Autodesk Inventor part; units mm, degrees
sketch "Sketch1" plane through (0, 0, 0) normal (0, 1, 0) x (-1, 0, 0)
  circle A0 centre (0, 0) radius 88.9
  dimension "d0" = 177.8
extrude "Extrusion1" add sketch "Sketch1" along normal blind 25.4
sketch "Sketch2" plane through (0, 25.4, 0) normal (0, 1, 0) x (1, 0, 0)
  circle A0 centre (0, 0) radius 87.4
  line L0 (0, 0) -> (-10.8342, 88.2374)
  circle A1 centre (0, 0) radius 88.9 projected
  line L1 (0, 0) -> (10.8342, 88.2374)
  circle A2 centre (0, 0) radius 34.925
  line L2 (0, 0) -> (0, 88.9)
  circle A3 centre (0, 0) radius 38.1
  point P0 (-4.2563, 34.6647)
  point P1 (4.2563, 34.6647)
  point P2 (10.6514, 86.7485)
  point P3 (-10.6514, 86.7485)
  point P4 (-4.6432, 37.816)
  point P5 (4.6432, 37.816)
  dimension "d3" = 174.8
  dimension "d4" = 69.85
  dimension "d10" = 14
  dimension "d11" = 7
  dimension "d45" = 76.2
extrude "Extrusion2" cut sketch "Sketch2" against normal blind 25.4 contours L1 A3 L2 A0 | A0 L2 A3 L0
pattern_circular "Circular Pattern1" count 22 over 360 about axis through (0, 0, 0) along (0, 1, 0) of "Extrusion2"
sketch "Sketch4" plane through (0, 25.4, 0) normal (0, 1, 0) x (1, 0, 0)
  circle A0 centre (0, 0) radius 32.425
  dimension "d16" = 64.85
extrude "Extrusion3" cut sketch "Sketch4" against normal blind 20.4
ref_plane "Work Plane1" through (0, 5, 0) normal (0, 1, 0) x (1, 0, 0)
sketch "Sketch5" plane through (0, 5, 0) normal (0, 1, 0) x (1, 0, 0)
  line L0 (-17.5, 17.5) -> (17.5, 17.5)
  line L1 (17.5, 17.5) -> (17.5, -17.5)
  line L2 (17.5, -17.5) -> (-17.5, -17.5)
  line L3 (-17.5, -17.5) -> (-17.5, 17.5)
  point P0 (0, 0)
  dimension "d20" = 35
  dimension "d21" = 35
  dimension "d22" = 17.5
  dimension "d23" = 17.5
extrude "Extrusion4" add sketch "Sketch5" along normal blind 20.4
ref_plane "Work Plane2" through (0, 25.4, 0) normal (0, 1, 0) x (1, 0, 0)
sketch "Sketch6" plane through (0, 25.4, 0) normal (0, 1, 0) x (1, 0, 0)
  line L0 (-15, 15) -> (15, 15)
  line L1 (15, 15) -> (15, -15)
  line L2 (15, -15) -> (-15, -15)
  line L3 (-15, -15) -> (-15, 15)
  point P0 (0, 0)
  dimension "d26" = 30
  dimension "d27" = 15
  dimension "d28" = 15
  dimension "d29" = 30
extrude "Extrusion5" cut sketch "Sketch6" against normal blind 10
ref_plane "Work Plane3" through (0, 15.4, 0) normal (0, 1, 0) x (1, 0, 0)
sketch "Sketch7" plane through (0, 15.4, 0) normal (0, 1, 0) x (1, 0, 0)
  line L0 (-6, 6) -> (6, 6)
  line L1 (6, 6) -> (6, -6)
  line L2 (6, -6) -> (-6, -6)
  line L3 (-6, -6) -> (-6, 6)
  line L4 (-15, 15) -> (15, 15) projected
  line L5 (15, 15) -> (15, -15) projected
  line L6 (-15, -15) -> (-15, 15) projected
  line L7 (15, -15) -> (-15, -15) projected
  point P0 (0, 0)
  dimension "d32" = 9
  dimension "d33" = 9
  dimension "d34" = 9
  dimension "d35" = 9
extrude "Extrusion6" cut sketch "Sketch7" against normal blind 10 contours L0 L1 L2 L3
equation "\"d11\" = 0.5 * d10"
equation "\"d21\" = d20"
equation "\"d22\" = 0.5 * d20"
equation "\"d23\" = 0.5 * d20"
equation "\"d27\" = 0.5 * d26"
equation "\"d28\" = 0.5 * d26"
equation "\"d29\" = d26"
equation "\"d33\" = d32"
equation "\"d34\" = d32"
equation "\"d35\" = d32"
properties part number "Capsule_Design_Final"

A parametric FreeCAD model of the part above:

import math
import FreeCAD as App
import Part
import Sketcher
Q = App.Units.Quantity

doc = App.newDocument("Part")
body = doc.addObject("PartDesign::Body", "Body")

# Sketch on XZ plane
sketch1 = body.newObject("Sketcher::SketchObject", "Sketch")
sketch1.AttachmentSupport = (doc.getObject("XZ_Plane"), [""])
sketch1.MapMode = "FlatFace"
sketch1.addGeometry(Part.Circle(App.Vector(0, 0, 0), App.Vector(0, 0, 1), 89), False)
sketch1.addConstraint([
    Sketcher.Constraint("Coincident", 0, 3, -1, 1),
    Sketcher.Constraint("Diameter", 0, 177.8),
])
pad1 = body.newObject("PartDesign::Pad", "Pad")
pad1.Profile = sketch1
pad1.Length = 25.4
pad1.Reversed = True

# Sketch on XZ plane
sketch2 = body.newObject("Sketcher::SketchObject", "Sketch001")
sketch2.AttachmentSupport = (doc.getObject("XZ_Plane"), [""])
sketch2.MapMode = "FlatFace"
sketch2.AttachmentOffset = App.Placement(App.Vector(0, 0, -25.4), App.Rotation())
sketch2.addGeometry([
    Part.LineSegment(App.Vector(5, -38, 0), App.Vector(11, -87, 0)),
    Part.ArcOfCircle(Part.Circle(App.Vector(0, 0, 0), App.Vector(0, 0, 1), 87), math.radians(-97), math.radians(-83)),
    Part.LineSegment(App.Vector(-11, -87, 0), App.Vector(-5, -38, 0)),
    Part.ArcOfCircle(Part.Circle(App.Vector(0, 0, 0), App.Vector(0, 0, 1), 38), math.radians(-97), math.radians(-83)),
], False)
sketch2.addConstraint([
    Sketcher.Constraint("Coincident", 0, 2, 1, 2),
    Sketcher.Constraint("Coincident", 1, 1, 2, 1),
    Sketcher.Constraint("Coincident", 2, 2, 3, 1),
    Sketcher.Constraint("Coincident", 3, 2, 0, 1),
    Sketcher.Constraint("Coincident", 1, 3, -1, 1),
    Sketcher.Constraint("Coincident", 3, 3, -1, 1),
    Sketcher.Constraint("Horizontal", 0, 2, 1, 1),
    Sketcher.Constraint("Horizontal", 2, 2, 3, 2),
    Sketcher.Constraint("Radius", 1, 87.4),
    Sketcher.Constraint("Radius", 3, 38.1),
    Sketcher.Constraint("Angle", 0, Q("-83 deg")),
    Sketcher.Constraint("DistanceY", 2, 2, -1, 1, 37.816),
])
pocket1 = body.newObject("PartDesign::Pocket", "Pocket")
pocket1.Profile = sketch2
pocket1.Length = 25.4
pocket1.Reversed = True
doc.recompute()

polarpattern = body.newObject("PartDesign::PolarPattern", "PolarPattern")
polarpattern.Originals = [pocket1]
polarpattern.Axis = (doc.getObject("Y_Axis"), [""])
polarpattern.Angle = 360
polarpattern.Occurrences = 22
body.Tip = polarpattern

# Sketch on XZ plane
sketch3 = body.newObject("Sketcher::SketchObject", "Sketch002")
sketch3.AttachmentSupport = (doc.getObject("XZ_Plane"), [""])
sketch3.MapMode = "FlatFace"
sketch3.AttachmentOffset = App.Placement(App.Vector(0, 0, -25.4), App.Rotation())
sketch3.addGeometry(Part.Circle(App.Vector(0, 0, 0), App.Vector(0, 0, 1), 32), False)
sketch3.addConstraint([
    Sketcher.Constraint("Coincident", 0, 3, -1, 1),
    Sketcher.Constraint("Diameter", 0, 64.85),
])
pocket2 = body.newObject("PartDesign::Pocket", "Pocket001")
pocket2.Profile = sketch3
pocket2.Length = 20.4
pocket2.Reversed = True

# Sketch on XZ plane
sketch4 = body.newObject("Sketcher::SketchObject", "Sketch003")
sketch4.AttachmentSupport = (doc.getObject("XZ_Plane"), [""])
sketch4.MapMode = "FlatFace"
sketch4.AttachmentOffset = App.Placement(App.Vector(0, 0, -5), App.Rotation())
sketch4.addGeometry([
    Part.LineSegment(App.Vector(18, -18, 0), App.Vector(-18, -18, 0)),
    Part.LineSegment(App.Vector(-18, -18, 0), App.Vector(-18, 18, 0)),
    Part.LineSegment(App.Vector(-18, 18, 0), App.Vector(18, 18, 0)),
    Part.LineSegment(App.Vector(18, 18, 0), App.Vector(18, -18, 0)),
], False)
sketch4.addConstraint([
    Sketcher.Constraint("Coincident", 0, 2, 1, 1),
    Sketcher.Constraint("Coincident", 1, 2, 2, 1),
    Sketcher.Constraint("Coincident", 2, 2, 3, 1),
    Sketcher.Constraint("Coincident", 3, 2, 0, 1),
    Sketcher.Constraint("Horizontal", 0),
    Sketcher.Constraint("Vertical", 1),
    Sketcher.Constraint("Horizontal", 2),
    Sketcher.Constraint("Vertical", 3),
    Sketcher.Constraint("Symmetric", 0, 2, 2, 2, -1, 1),
    Sketcher.Constraint("Equal", 2, 1),
    Sketcher.Constraint("DistanceX", 0, 2, 0, 1, 35.0),
])
pad2 = body.newObject("PartDesign::Pad", "Pad001")
pad2.Profile = sketch4
pad2.Length = 20.4
pad2.Reversed = True

# Sketch on XZ plane
sketch5 = body.newObject("Sketcher::SketchObject", "Sketch004")
sketch5.AttachmentSupport = (doc.getObject("XZ_Plane"), [""])
sketch5.MapMode = "FlatFace"
sketch5.AttachmentOffset = App.Placement(App.Vector(0, 0, -25.4), App.Rotation())
sketch5.addGeometry([
    Part.LineSegment(App.Vector(15, -15, 0), App.Vector(-15, -15, 0)),
    Part.LineSegment(App.Vector(-15, -15, 0), App.Vector(-15, 15, 0)),
    Part.LineSegment(App.Vector(-15, 15, 0), App.Vector(15, 15, 0)),
    Part.LineSegment(App.Vector(15, 15, 0), App.Vector(15, -15, 0)),
], False)
sketch5.addConstraint([
    Sketcher.Constraint("Coincident", 0, 2, 1, 1),
    Sketcher.Constraint("Coincident", 1, 2, 2, 1),
    Sketcher.Constraint("Coincident", 2, 2, 3, 1),
    Sketcher.Constraint("Coincident", 3, 2, 0, 1),
    Sketcher.Constraint("Horizontal", 0),
    Sketcher.Constraint("Vertical", 1),
    Sketcher.Constraint("Horizontal", 2),
    Sketcher.Constraint("Vertical", 3),
    Sketcher.Constraint("Symmetric", 0, 2, 2, 2, -1, 1),
    Sketcher.Constraint("Equal", 2, 1),
    Sketcher.Constraint("DistanceX", 0, 2, 0, 1, 30.0),
])
pocket3 = body.newObject("PartDesign::Pocket", "Pocket002")
pocket3.Profile = sketch5
pocket3.Length = 10
pocket3.Reversed = True

# Sketch on XZ plane
sketch6 = body.newObject("Sketcher::SketchObject", "Sketch005")
sketch6.AttachmentSupport = (doc.getObject("XZ_Plane"), [""])
sketch6.MapMode = "FlatFace"
sketch6.AttachmentOffset = App.Placement(App.Vector(0, 0, -15.4), App.Rotation())
sketch6.addGeometry([
    Part.LineSegment(App.Vector(6, -6, 0), App.Vector(-6, -6, 0)),
    Part.LineSegment(App.Vector(-6, -6, 0), App.Vector(-6, 6, 0)),
    Part.LineSegment(App.Vector(-6, 6, 0), App.Vector(6, 6, 0)),
    Part.LineSegment(App.Vector(6, 6, 0), App.Vector(6, -6, 0)),
], False)
sketch6.addConstraint([
    Sketcher.Constraint("Coincident", 0, 2, 1, 1),
    Sketcher.Constraint("Coincident", 1, 2, 2, 1),
    Sketcher.Constraint("Coincident", 2, 2, 3, 1),
    Sketcher.Constraint("Coincident", 3, 2, 0, 1),
    Sketcher.Constraint("Horizontal", 0),
    Sketcher.Constraint("Vertical", 1),
    Sketcher.Constraint("Horizontal", 2),
    Sketcher.Constraint("Vertical", 3),
    Sketcher.Constraint("Symmetric", 0, 2, 2, 2, -1, 1),
    Sketcher.Constraint("Equal", 2, 1),
    Sketcher.Constraint("DistanceX", 0, 2, 0, 1, 12.0),
])
pocket4 = body.newObject("PartDesign::Pocket", "Pocket003")
pocket4.Profile = sketch6
pocket4.Length = 10
pocket4.Reversed = True

doc.recompute()
